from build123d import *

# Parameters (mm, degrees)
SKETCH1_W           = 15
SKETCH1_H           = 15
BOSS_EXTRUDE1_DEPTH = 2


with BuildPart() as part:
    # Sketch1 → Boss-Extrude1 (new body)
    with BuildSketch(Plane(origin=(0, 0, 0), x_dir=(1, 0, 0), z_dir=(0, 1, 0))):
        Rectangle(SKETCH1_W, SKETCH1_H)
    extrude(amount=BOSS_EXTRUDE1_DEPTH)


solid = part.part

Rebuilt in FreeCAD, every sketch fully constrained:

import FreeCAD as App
import Part
import Sketcher
Q = App.Units.Quantity

doc = App.newDocument("Part")
body = doc.addObject("PartDesign::Body", "Body")

# Sketch on XZ plane
sketch1 = body.newObject("Sketcher::SketchObject", "Sketch")
sketch1.AttachmentSupport = (doc.getObject("XZ_Plane"), [""])
sketch1.MapMode = "FlatFace"
sketch1.addGeometry(Part.LineSegment(App.Vector(-8, -8, 0), App.Vector(-8, 8, 0)), False)
sketch1.addGeometry(Part.LineSegment(App.Vector(-8, 8, 0), App.Vector(8, 8, 0)), False)
sketch1.addGeometry(Part.LineSegment(App.Vector(8, 8, 0), App.Vector(8, -8, 0)), False)
sketch1.addGeometry(Part.LineSegment(App.Vector(8, -8, 0), App.Vector(-8, -8, 0)), False)
sketch1.addConstraint(Sketcher.Constraint("Coincident", 0, 2, 1, 1))
sketch1.addConstraint(Sketcher.Constraint("Coincident", 1, 2, 2, 1))
sketch1.addConstraint(Sketcher.Constraint("Coincident", 2, 2, 3, 1))
sketch1.addConstraint(Sketcher.Constraint("Coincident", 3, 2, 0, 1))
sketch1.addConstraint(Sketcher.Constraint("Vertical", 0))
sketch1.addConstraint(Sketcher.Constraint("Horizontal", 1))
sketch1.addConstraint(Sketcher.Constraint("Vertical", 2))
sketch1.addConstraint(Sketcher.Constraint("Horizontal", 3))
sketch1.addConstraint(Sketcher.Constraint("Symmetric", 0, 2, 2, 2, -1, 1))
sketch1.addConstraint(Sketcher.Constraint("Equal", 3, 0))
sketch1.addConstraint(Sketcher.Constraint("DistanceX", 1, 1, 1, 2, Q("15 mm")))
pad1 = body.newObject("PartDesign::Pad", "Pad")
pad1.Profile = sketch1
pad1.Length = 2
pad1.Reversed = True

doc.recompute()
